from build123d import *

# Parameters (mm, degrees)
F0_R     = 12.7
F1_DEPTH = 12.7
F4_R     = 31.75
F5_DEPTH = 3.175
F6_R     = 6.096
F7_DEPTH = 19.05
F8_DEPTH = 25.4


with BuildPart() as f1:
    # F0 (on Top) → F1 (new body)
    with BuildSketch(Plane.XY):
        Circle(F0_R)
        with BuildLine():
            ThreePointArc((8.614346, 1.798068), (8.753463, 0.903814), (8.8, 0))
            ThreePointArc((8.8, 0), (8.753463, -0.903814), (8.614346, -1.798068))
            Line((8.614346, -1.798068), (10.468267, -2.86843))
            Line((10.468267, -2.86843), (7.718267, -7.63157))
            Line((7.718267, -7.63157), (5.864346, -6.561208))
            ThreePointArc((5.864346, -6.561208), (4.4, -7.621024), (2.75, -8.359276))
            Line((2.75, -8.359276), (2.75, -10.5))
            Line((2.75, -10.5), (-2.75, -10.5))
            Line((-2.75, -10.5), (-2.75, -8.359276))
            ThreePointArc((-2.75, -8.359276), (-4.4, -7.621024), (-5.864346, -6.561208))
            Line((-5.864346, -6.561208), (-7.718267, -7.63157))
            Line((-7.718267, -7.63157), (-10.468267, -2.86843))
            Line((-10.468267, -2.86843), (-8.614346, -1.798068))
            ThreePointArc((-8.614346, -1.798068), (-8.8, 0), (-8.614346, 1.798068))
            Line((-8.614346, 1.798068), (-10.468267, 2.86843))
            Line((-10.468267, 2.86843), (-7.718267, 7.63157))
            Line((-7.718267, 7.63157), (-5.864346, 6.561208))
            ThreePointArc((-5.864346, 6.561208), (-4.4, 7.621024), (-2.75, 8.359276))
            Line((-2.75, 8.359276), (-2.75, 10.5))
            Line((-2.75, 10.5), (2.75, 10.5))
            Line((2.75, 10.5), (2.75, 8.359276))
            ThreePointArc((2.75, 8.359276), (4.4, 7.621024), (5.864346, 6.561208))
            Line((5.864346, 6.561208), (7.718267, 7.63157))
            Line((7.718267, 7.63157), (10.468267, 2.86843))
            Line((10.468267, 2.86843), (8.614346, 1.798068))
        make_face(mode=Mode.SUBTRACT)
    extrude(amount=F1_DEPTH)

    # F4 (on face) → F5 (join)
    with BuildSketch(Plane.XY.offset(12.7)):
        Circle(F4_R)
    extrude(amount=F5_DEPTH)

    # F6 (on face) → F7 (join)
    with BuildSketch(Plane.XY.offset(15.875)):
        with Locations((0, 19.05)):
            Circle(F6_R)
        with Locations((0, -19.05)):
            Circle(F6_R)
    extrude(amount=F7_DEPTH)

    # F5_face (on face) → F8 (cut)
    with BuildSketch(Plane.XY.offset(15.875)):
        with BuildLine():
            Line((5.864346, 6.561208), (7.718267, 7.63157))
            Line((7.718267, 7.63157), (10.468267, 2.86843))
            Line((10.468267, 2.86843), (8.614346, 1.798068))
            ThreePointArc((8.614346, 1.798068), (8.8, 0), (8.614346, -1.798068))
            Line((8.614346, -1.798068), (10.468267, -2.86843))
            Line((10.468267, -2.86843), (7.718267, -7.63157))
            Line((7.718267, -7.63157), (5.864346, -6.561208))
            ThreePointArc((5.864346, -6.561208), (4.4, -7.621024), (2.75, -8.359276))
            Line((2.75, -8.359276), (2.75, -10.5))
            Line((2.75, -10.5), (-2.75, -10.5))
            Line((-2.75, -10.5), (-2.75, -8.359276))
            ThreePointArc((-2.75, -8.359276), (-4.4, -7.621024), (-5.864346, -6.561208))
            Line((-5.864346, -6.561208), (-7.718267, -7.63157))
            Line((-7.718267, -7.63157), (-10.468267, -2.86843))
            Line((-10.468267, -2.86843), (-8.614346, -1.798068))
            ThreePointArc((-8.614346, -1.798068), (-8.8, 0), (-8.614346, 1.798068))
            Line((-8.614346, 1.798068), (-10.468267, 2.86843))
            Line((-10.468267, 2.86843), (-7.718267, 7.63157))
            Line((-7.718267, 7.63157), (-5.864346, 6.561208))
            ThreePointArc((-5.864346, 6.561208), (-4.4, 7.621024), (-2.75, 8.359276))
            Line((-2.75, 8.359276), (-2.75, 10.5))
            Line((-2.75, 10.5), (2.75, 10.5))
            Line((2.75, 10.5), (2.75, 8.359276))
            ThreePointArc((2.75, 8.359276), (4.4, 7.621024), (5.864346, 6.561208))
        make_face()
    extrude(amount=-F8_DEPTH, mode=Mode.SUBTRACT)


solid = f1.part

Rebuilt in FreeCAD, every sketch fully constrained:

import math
import FreeCAD as App
import Part
import Sketcher
from FreeCAD import Vector
Q = App.Units.Quantity

doc = App.newDocument("Part")
body = doc.addObject("PartDesign::Body", "Body")

# Sketch on XY plane
sketch1 = body.newObject("Sketcher::SketchObject", "Sketch")
sketch1.AttachmentSupport = (doc.getObject("XY_Plane"), [""])
sketch1.MapMode = "FlatFace"
sketch1.addGeometry(Part.Circle(Vector(0, 0, 0), Vector(0, 0, 1), 12.7), False)
sketch1.addGeometry(Part.LineSegment(Vector(10.468267, 2.86843, 0), Vector(8.614346, 1.798068, 0)), False)
sketch1.addGeometry(Part.ArcOfCircle(Part.Circle(Vector(-0.000091, -0.000008, 0), Vector(0, 0, 1), 8.800091), math.radians(0.000051), math.radians(11.78997)), False)
sketch1.addGeometry(Part.ArcOfCircle(Part.Circle(Vector(-0.000091, 0.000008, 0), Vector(0, 0, 1), 8.800091), math.radians(-11.78997), math.radians(-0.000051)), False)
sketch1.addGeometry(Part.LineSegment(Vector(8.614346, -1.798068, 0), Vector(10.468267, -2.86843, 0)), False)
sketch1.addGeometry(Part.LineSegment(Vector(10.468267, -2.86843, 0), Vector(7.718267, -7.63157, 0)), False)
sketch1.addGeometry(Part.LineSegment(Vector(7.718267, -7.63157, 0), Vector(5.864346, -6.561208, 0)), False)
sketch1.addGeometry(Part.ArcOfCircle(Part.Circle(Vector(0.00001, -0.000016, 0), Vector(0, 0, 1), 8.799982), math.radians(-71.790076), math.radians(-48.209938)), False)
sketch1.addGeometry(Part.LineSegment(Vector(2.75, -8.359276, 0), Vector(2.75, -10.5, 0)), False)
sketch1.addGeometry(Part.LineSegment(Vector(2.75, -10.5, 0), Vector(-2.75, -10.5, 0)), False)
sketch1.addGeometry(Part.LineSegment(Vector(-2.75, -10.5, 0), Vector(-2.75, -8.359276, 0)), False)
sketch1.addGeometry(Part.ArcOfCircle(Part.Circle(Vector(-0.00001, -0.000016, 0), Vector(0, 0, 1), 8.799982), math.radians(-131.790062), math.radians(-108.209924)), False)
sketch1.addGeometry(Part.LineSegment(Vector(-5.864346, -6.561208, 0), Vector(-7.718267, -7.63157, 0)), False)
sketch1.addGeometry(Part.LineSegment(Vector(-7.718267, -7.63157, 0), Vector(-10.468267, -2.86843, 0)), False)
sketch1.addGeometry(Part.LineSegment(Vector(-10.468267, -2.86843, 0), Vector(-8.614346, -1.798068, 0)), False)
sketch1.addGeometry(Part.ArcOfCircle(Part.Circle(Vector(0.000015, 0, 0), Vector(0, 0, 1), 8.800015), math.radians(168.209979), math.radians(191.790021)), False)
sketch1.addGeometry(Part.LineSegment(Vector(-8.614346, 1.798068, 0), Vector(-10.468267, 2.86843, 0)), False)
sketch1.addGeometry(Part.LineSegment(Vector(-10.468267, 2.86843, 0), Vector(-7.718267, 7.63157, 0)), False)
sketch1.addGeometry(Part.LineSegment(Vector(-7.718267, 7.63157, 0), Vector(-5.864346, 6.561208, 0)), False)
sketch1.addGeometry(Part.ArcOfCircle(Part.Circle(Vector(-0.00001, 0.000016, 0), Vector(0, 0, 1), 8.799982), math.radians(108.209924), math.radians(131.790062)), False)
sketch1.addGeometry(Part.LineSegment(Vector(-2.75, 8.359276, 0), Vector(-2.75, 10.5, 0)), False)
sketch1.addGeometry(Part.LineSegment(Vector(-2.75, 10.5, 0), Vector(2.75, 10.5, 0)), False)
sketch1.addGeometry(Part.LineSegment(Vector(2.75, 10.5, 0), Vector(2.75, 8.359276, 0)), False)
sketch1.addGeometry(Part.ArcOfCircle(Part.Circle(Vector(0.00001, 0.000016, 0), Vector(0, 0, 1), 8.799982), math.radians(48.209938), math.radians(71.790076)), False)
sketch1.addGeometry(Part.LineSegment(Vector(5.864346, 6.561208, 0), Vector(7.718267, 7.63157, 0)), False)
sketch1.addGeometry(Part.LineSegment(Vector(7.718267, 7.63157, 0), Vector(10.468267, 2.86843, 0)), False)
sketch1.addConstraint(Sketcher.Constraint("Coincident", 1, 2, 2, 2))
sketch1.addConstraint(Sketcher.Constraint("Tangent", 2, 1, 3, 2))
sketch1.addConstraint(Sketcher.Constraint("Coincident", 3, 1, 4, 1))
sketch1.addConstraint(Sketcher.Constraint("Coincident", 4, 2, 5, 1))
sketch1.addConstraint(Sketcher.Constraint("Coincident", 5, 2, 6, 1))
sketch1.addConstraint(Sketcher.Constraint("Coincident", 6, 2, 7, 2))
sketch1.addConstraint(Sketcher.Constraint("Coincident", 7, 1, 8, 1))
sketch1.addConstraint(Sketcher.Constraint("Coincident", 8, 2, 9, 1))
sketch1.addConstraint(Sketcher.Constraint("Coincident", 9, 2, 10, 1))
sketch1.addConstraint(Sketcher.Constraint("Coincident", 10, 2, 11, 2))
sketch1.addConstraint(Sketcher.Constraint("Coincident", 11, 1, 12, 1))
sketch1.addConstraint(Sketcher.Constraint("Coincident", 12, 2, 13, 1))
sketch1.addConstraint(Sketcher.Constraint("Coincident", 13, 2, 14, 1))
sketch1.addConstraint(Sketcher.Constraint("Coincident", 14, 2, 15, 2))
sketch1.addConstraint(Sketcher.Constraint("Coincident", 15, 1, 16, 1))
sketch1.addConstraint(Sketcher.Constraint("Coincident", 16, 2, 17, 1))
sketch1.addConstraint(Sketcher.Constraint("Coincident", 17, 2, 18, 1))
sketch1.addConstraint(Sketcher.Constraint("Coincident", 18, 2, 19, 2))
sketch1.addConstraint(Sketcher.Constraint("Coincident", 19, 1, 20, 1))
sketch1.addConstraint(Sketcher.Constraint("Coincident", 20, 2, 21, 1))
sketch1.addConstraint(Sketcher.Constraint("Coincident", 21, 2, 22, 1))
sketch1.addConstraint(Sketcher.Constraint("Coincident", 22, 2, 23, 2))
sketch1.addConstraint(Sketcher.Constraint("Coincident", 23, 1, 24, 1))
sketch1.addConstraint(Sketcher.Constraint("Coincident", 24, 2, 25, 1))
sketch1.addConstraint(Sketcher.Constraint("Coincident", 25, 2, 1, 1))
sketch1.addConstraint(Sketcher.Constraint("Vertical", 8))
sketch1.addConstraint(Sketcher.Constraint("Horizontal", 9))
sketch1.addConstraint(Sketcher.Constraint("Vertical", 10))
sketch1.addConstraint(Sketcher.Constraint("Vertical", 20))
sketch1.addConstraint(Sketcher.Constraint("Horizontal", 21))
sketch1.addConstraint(Sketcher.Constraint("Vertical", 22))
sketch1.addConstraint(Sketcher.Constraint("Coincident", 0, 3, -1, 1))
sketch1.addConstraint(Sketcher.Constraint("Equal", 2, 3))
sketch1.addConstraint(Sketcher.Constraint("Equal", 7, 11))
sketch1.addConstraint(Sketcher.Constraint("Equal", 11, 19))
sketch1.addConstraint(Sketcher.Constraint("Equal", 19, 23))
sketch1.addConstraint(Sketcher.Constraint("Symmetric", 7, 3, 19, 3, -1, 1))
sketch1.addConstraint(Sketcher.Constraint("Symmetric", 11, 3, 23, 3, -1, 1))
sketch1.addConstraint(Sketcher.Constraint("Symmetric", 1, 2, 14, 2, -1, 1))
sketch1.addConstraint(Sketcher.Constraint("Symmetric", 3, 1, 15, 1, -1, 1))
sketch1.addConstraint(Sketcher.Constraint("Symmetric", 4, 2, 16, 2, -1, 1))
sketch1.addConstraint(Sketcher.Constraint("Symmetric", 5, 2, 17, 2, -1, 1))
sketch1.addConstraint(Sketcher.Constraint("Symmetric", 8, 2, 20, 2, -1, 1))
sketch1.addConstraint(Sketcher.Constraint("Symmetric", 12, 2, 24, 2, -1, 1))
sketch1.addConstraint(Sketcher.Constraint("Symmetric", 13, 2, 25, 2, -1, 1))
sketch1.addConstraint(Sketcher.Constraint("Symmetric", 7, 3, 11, 3, -2))
sketch1.addConstraint(Sketcher.Constraint("Symmetric", 5, 2, 12, 2, -2))
sketch1.addConstraint(Sketcher.Constraint("Symmetric", 4, 2, 13, 2, -2))
sketch1.addConstraint(Sketcher.Constraint("Symmetric", 3, 1, 14, 2, -2))
sketch1.addConstraint(Sketcher.Constraint("PointOnObject", 2, 1, -1))
sketch1.addConstraint(Sketcher.Constraint("Perpendicular", 4, 5))
sketch1.addConstraint(Sketcher.Constraint("Perpendicular", 5, 6))
sketch1.addConstraint(Sketcher.Constraint("Parallel", 1, 12))
sketch1.addConstraint(Sketcher.Constraint("Perpendicular", 17, 18))
sketch1.addConstraint(Sketcher.Constraint("Parallel", 14, 24))
sketch1.addConstraint(Sketcher.Constraint("Horizontal", 7, 1, 10, 2))
sketch1.addConstraint(Sketcher.Constraint("Horizontal", 19, 1, 22, 2))
sketch1.addConstraint(Sketcher.Constraint("Equal", 4, 6))
sketch1.addConstraint(Sketcher.Constraint("Diameter", 0, Q("1 in")))
sketch1.addConstraint(Sketcher.Constraint("Angle", 1, Q("-149.999995 deg")))
sketch1.addConstraint(Sketcher.Constraint("Radius", 2, 8.800091))
sketch1.addConstraint(Sketcher.Constraint("Radius", 7, 8.799982))
sketch1.addConstraint(Sketcher.Constraint("DistanceX", 9, 2, 9, 1, 5.5))
sketch1.addConstraint(Sketcher.Constraint("Radius", 15, 8.800015))
sketch1.addConstraint(Sketcher.Constraint("Distance", 5, 5.5))
sketch1.addConstraint(Sketcher.Constraint("DistanceX", -1, 1, 2, 1, 8.8))
sketch1.addConstraint(Sketcher.Constraint("DistanceY", 8, 2, -1, 1, 10.5))
sketch1.addConstraint(Sketcher.Constraint("DistanceX", 2, 3, 7, 3, 0.000102))
sketch1.addConstraint(Sketcher.Constraint("DistanceY", 11, 1, 2, 3, 6.5612))
sketch1.addConstraint(Sketcher.Constraint("DistanceY", 4, 2, -1, 1, 2.86843))
pad1 = body.newObject("PartDesign::Pad", "Pad")
pad1.Profile = sketch1
pad1.Length = Q("0.5 in")

# Sketch on XY plane
sketch2 = body.newObject("Sketcher::SketchObject", "Sketch001")
sketch2.AttachmentSupport = (doc.getObject("XY_Plane"), [""])
sketch2.MapMode = "FlatFace"
sketch2.AttachmentOffset = App.Placement(Vector(0, 0, 0.5 * 25.4), App.Rotation())
sketch2.addGeometry(Part.Circle(Vector(0, 0, 0), Vector(0, 0, 1), 32), False)
sketch2.addConstraint(Sketcher.Constraint("Coincident", 0, 3, -1, 1))
sketch2.addConstraint(Sketcher.Constraint("Diameter", 0, Q("2.5 in")))
pad2 = body.newObject("PartDesign::Pad", "Pad001")
pad2.Profile = sketch2
pad2.Length = Q("0.125 in")

# Sketch on XY plane
sketch3 = body.newObject("Sketcher::SketchObject", "Sketch002")
sketch3.AttachmentSupport = (doc.getObject("XY_Plane"), [""])
sketch3.MapMode = "FlatFace"
sketch3.AttachmentOffset = App.Placement(Vector(0, 0, 0.625 * 25.4), App.Rotation())
sketch3.addGeometry(Part.Circle(Vector(0, 19, 0), Vector(0, 0, 1), 6), False)
sketch3.addGeometry(Part.Circle(Vector(0, -19, 0), Vector(0, 0, 1), 6), False)
sketch3.addConstraint(Sketcher.Constraint("Equal", 0, 1))
sketch3.addConstraint(Sketcher.Constraint("Symmetric", 0, 3, 1, 3, -1, 1))
sketch3.addConstraint(Sketcher.Constraint("PointOnObject", 0, 3, -2))
sketch3.addConstraint(Sketcher.Constraint("Diameter", 0, Q("0.48 in")))
sketch3.addConstraint(Sketcher.Constraint("DistanceY", 1, 3, 0, 3, Q("1.5 in")))
pad3 = body.newObject("PartDesign::Pad", "Pad002")
pad3.Profile = sketch3
pad3.Length = Q("0.75 in")

# Sketch on XY plane
sketch4 = body.newObject("Sketcher::SketchObject", "Sketch003")
sketch4.AttachmentSupport = (doc.getObject("XY_Plane"), [""])
sketch4.MapMode = "FlatFace"
sketch4.AttachmentOffset = App.Placement(Vector(0, 0, 0.625 * 25.4), App.Rotation())
sketch4.addGeometry(Part.LineSegment(Vector(7.718267, 7.63157, 0), Vector(5.864346, 6.561208, 0)), False)
sketch4.addGeometry(Part.ArcOfCircle(Part.Circle(Vector(0.00001, 0.000016, 0), Vector(0, 0, 1), 8.799982), math.radians(48.209938), math.radians(71.790076)), False)
sketch4.addGeometry(Part.LineSegment(Vector(2.75, 8.359276, 0), Vector(2.75, 10.5, 0)), False)
sketch4.addGeometry(Part.LineSegment(Vector(2.75, 10.5, 0), Vector(-2.75, 10.5, 0)), False)
sketch4.addGeometry(Part.LineSegment(Vector(-2.75, 10.5, 0), Vector(-2.75, 8.359276, 0)), False)
sketch4.addGeometry(Part.ArcOfCircle(Part.Circle(Vector(-0.00001, 0.000016, 0), Vector(0, 0, 1), 8.799982), math.radians(108.209924), math.radians(131.790062)), False)
sketch4.addGeometry(Part.LineSegment(Vector(-5.864346, 6.561208, 0), Vector(-7.718267, 7.63157, 0)), False)
sketch4.addGeometry(Part.LineSegment(Vector(-7.718267, 7.63157, 0), Vector(-10.468267, 2.86843, 0)), False)
sketch4.addGeometry(Part.LineSegment(Vector(-10.468267, 2.86843, 0), Vector(-8.614346, 1.798068, 0)), False)
sketch4.addGeometry(Part.ArcOfCircle(Part.Circle(Vector(0.000015, 0, 0), Vector(0, 0, 1), 8.800015), math.radians(168.209979), math.radians(191.790021)), False)
sketch4.addGeometry(Part.LineSegment(Vector(-8.614346, -1.798068, 0), Vector(-10.468267, -2.86843, 0)), False)
sketch4.addGeometry(Part.LineSegment(Vector(-10.468267, -2.86843, 0), Vector(-7.718267, -7.63157, 0)), False)
sketch4.addGeometry(Part.LineSegment(Vector(-7.718267, -7.63157, 0), Vector(-5.864346, -6.561208, 0)), False)
sketch4.addGeometry(Part.ArcOfCircle(Part.Circle(Vector(-0.00001, -0.000016, 0), Vector(0, 0, 1), 8.799982), math.radians(-131.790062), math.radians(-108.209924)), False)
sketch4.addGeometry(Part.LineSegment(Vector(-2.75, -8.359276, 0), Vector(-2.75, -10.5, 0)), False)
sketch4.addGeometry(Part.LineSegment(Vector(-2.75, -10.5, 0), Vector(2.75, -10.5, 0)), False)
sketch4.addGeometry(Part.LineSegment(Vector(2.75, -10.5, 0), Vector(2.75, -8.359276, 0)), False)
sketch4.addGeometry(Part.ArcOfCircle(Part.Circle(Vector(0.00001, -0.000016, 0), Vector(0, 0, 1), 8.799982), math.radians(-71.790076), math.radians(-48.209938)), False)
sketch4.addGeometry(Part.LineSegment(Vector(5.864346, -6.561208, 0), Vector(7.718267, -7.63157, 0)), False)
sketch4.addGeometry(Part.LineSegment(Vector(7.718267, -7.63157, 0), Vector(10.468267, -2.86843, 0)), False)
sketch4.addGeometry(Part.LineSegment(Vector(10.468267, -2.86843, 0), Vector(8.614346, -1.798068, 0)), False)
sketch4.addGeometry(Part.ArcOfCircle(Part.Circle(Vector(-0.000015, 0, 0), Vector(0, 0, 1), 8.800015), math.radians(-11.790021), math.radians(11.790021)), False)
sketch4.addGeometry(Part.LineSegment(Vector(8.614346, 1.798068, 0), Vector(10.468267, 2.86843, 0)), False)
sketch4.addGeometry(Part.LineSegment(Vector(10.468267, 2.86843, 0), Vector(7.718267, 7.63157, 0)), False)
sketch4.addConstraint(Sketcher.Constraint("Coincident", 0, 2, 1, 1))
sketch4.addConstraint(Sketcher.Constraint("Coincident", 1, 2, 2, 1))
sketch4.addConstraint(Sketcher.Constraint("Coincident", 2, 2, 3, 1))
sketch4.addConstraint(Sketcher.Constraint("Coincident", 3, 2, 4, 1))
sketch4.addConstraint(Sketcher.Constraint("Coincident", 4, 2, 5, 1))
sketch4.addConstraint(Sketcher.Constraint("Coincident", 5, 2, 6, 1))
sketch4.addConstraint(Sketcher.Constraint("Coincident", 6, 2, 7, 1))
sketch4.addConstraint(Sketcher.Constraint("Coincident", 7, 2, 8, 1))
sketch4.addConstraint(Sketcher.Constraint("Coincident", 8, 2, 9, 1))
sketch4.addConstraint(Sketcher.Constraint("Coincident", 9, 2, 10, 1))
sketch4.addConstraint(Sketcher.Constraint("Coincident", 10, 2, 11, 1))
sketch4.addConstraint(Sketcher.Constraint("Coincident", 11, 2, 12, 1))
sketch4.addConstraint(Sketcher.Constraint("Coincident", 12, 2, 13, 1))
sketch4.addConstraint(Sketcher.Constraint("Coincident", 13, 2, 14, 1))
sketch4.addConstraint(Sketcher.Constraint("Coincident", 14, 2, 15, 1))
sketch4.addConstraint(Sketcher.Constraint("Coincident", 15, 2, 16, 1))
sketch4.addConstraint(Sketcher.Constraint("Coincident", 16, 2, 17, 1))
sketch4.addConstraint(Sketcher.Constraint("Coincident", 17, 2, 18, 1))
sketch4.addConstraint(Sketcher.Constraint("Coincident", 18, 2, 19, 1))
sketch4.addConstraint(Sketcher.Constraint("Coincident", 19, 2, 20, 1))
sketch4.addConstraint(Sketcher.Constraint("Coincident", 20, 2, 21, 1))
sketch4.addConstraint(Sketcher.Constraint("Coincident", 21, 2, 22, 1))
sketch4.addConstraint(Sketcher.Constraint("Coincident", 22, 2, 23, 1))
sketch4.addConstraint(Sketcher.Constraint("Coincident", 23, 2, 0, 1))
sketch4.addConstraint(Sketcher.Constraint("Vertical", 2))
sketch4.addConstraint(Sketcher.Constraint("Horizontal", 3))
sketch4.addConstraint(Sketcher.Constraint("Vertical", 4))
sketch4.addConstraint(Sketcher.Constraint("Vertical", 14))
sketch4.addConstraint(Sketcher.Constraint("Horizontal", 15))
sketch4.addConstraint(Sketcher.Constraint("Vertical", 16))
sketch4.addConstraint(Sketcher.Constraint("Equal", 1, 5))
sketch4.addConstraint(Sketcher.Constraint("Equal", 5, 13))
sketch4.addConstraint(Sketcher.Constraint("Equal", 13, 17))
sketch4.addConstraint(Sketcher.Constraint("Equal", 9, 21))
sketch4.addConstraint(Sketcher.Constraint("Symmetric", 1, 3, 13, 3, -1, 1))
sketch4.addConstraint(Sketcher.Constraint("Symmetric", 5, 3, 17, 3, -1, 1))
sketch4.addConstraint(Sketcher.Constraint("Symmetric", 9, 3, 21, 3, -1, 1))
sketch4.addConstraint(Sketcher.Constraint("Symmetric", 2, 2, 14, 2, -1, 1))
sketch4.addConstraint(Sketcher.Constraint("Symmetric", 6, 2, 18, 2, -1, 1))
sketch4.addConstraint(Sketcher.Constraint("Symmetric", 7, 2, 19, 2, -1, 1))
sketch4.addConstraint(Sketcher.Constraint("Symmetric", 10, 2, 22, 2, -1, 1))
sketch4.addConstraint(Sketcher.Constraint("Symmetric", 11, 2, 23, 2, -1, 1))
sketch4.addConstraint(Sketcher.Constraint("Symmetric", 1, 3, 5, 3, -2))
sketch4.addConstraint(Sketcher.Constraint("Symmetric", 11, 2, 18, 2, -2))
sketch4.addConstraint(Sketcher.Constraint("Symmetric", 10, 2, 19, 2, -2))
sketch4.addConstraint(Sketcher.Constraint("Symmetric", 9, 2, 20, 2, -2))
sketch4.addConstraint(Sketcher.Constraint("Perpendicular", 6, 7))
sketch4.addConstraint(Sketcher.Constraint("Perpendicular", 7, 8))
sketch4.addConstraint(Sketcher.Constraint("Parallel", 0, 10))
sketch4.addConstraint(Sketcher.Constraint("Perpendicular", 10, 11))
sketch4.addConstraint(Sketcher.Constraint("Perpendicular", 11, 12))
sketch4.addConstraint(Sketcher.Constraint("Parallel", 8, 18))
sketch4.addConstraint(Sketcher.Constraint("Parallel", 12, 22))
sketch4.addConstraint(Sketcher.Constraint("Horizontal", 1, 2, 4, 2))
sketch4.addConstraint(Sketcher.Constraint("Horizontal", 13, 2, 16, 2))
sketch4.addConstraint(Sketcher.Constraint("Equal", 6, 8))
sketch4.addConstraint(Sketcher.Constraint("Angle", 0, Q("-149.999995 deg")))
sketch4.addConstraint(Sketcher.Constraint("Radius", 1, 8.799982))
sketch4.addConstraint(Sketcher.Constraint("DistanceX", 3, 2, 3, 1, 5.5))
sketch4.addConstraint(Sketcher.Constraint("Radius", 9, 8.800015))
sketch4.addConstraint(Sketcher.Constraint("Distance", 7, 5.5))
sketch4.addConstraint(Sketcher.Constraint("DistanceY", -1, 1, 2, 2, 10.5))
sketch4.addConstraint(Sketcher.Constraint("DistanceY", 2, 1, 2, 2, 2.140724))
sketch4.addConstraint(Sketcher.Constraint("DistanceY", -1, 1, 6, 2, 7.63157))
sketch4.addConstraint(Sketcher.Constraint("DistanceX", 9, 3, 0, 2, 5.864331))
sketch4.addConstraint(Sketcher.Constraint("DistanceX", 21, 3, 0, 2, 5.864361))
pocket1 = body.newObject("PartDesign::Pocket", "Pocket")
pocket1.Profile = sketch4
pocket1.Length = Q("1 in")

doc.recompute()
